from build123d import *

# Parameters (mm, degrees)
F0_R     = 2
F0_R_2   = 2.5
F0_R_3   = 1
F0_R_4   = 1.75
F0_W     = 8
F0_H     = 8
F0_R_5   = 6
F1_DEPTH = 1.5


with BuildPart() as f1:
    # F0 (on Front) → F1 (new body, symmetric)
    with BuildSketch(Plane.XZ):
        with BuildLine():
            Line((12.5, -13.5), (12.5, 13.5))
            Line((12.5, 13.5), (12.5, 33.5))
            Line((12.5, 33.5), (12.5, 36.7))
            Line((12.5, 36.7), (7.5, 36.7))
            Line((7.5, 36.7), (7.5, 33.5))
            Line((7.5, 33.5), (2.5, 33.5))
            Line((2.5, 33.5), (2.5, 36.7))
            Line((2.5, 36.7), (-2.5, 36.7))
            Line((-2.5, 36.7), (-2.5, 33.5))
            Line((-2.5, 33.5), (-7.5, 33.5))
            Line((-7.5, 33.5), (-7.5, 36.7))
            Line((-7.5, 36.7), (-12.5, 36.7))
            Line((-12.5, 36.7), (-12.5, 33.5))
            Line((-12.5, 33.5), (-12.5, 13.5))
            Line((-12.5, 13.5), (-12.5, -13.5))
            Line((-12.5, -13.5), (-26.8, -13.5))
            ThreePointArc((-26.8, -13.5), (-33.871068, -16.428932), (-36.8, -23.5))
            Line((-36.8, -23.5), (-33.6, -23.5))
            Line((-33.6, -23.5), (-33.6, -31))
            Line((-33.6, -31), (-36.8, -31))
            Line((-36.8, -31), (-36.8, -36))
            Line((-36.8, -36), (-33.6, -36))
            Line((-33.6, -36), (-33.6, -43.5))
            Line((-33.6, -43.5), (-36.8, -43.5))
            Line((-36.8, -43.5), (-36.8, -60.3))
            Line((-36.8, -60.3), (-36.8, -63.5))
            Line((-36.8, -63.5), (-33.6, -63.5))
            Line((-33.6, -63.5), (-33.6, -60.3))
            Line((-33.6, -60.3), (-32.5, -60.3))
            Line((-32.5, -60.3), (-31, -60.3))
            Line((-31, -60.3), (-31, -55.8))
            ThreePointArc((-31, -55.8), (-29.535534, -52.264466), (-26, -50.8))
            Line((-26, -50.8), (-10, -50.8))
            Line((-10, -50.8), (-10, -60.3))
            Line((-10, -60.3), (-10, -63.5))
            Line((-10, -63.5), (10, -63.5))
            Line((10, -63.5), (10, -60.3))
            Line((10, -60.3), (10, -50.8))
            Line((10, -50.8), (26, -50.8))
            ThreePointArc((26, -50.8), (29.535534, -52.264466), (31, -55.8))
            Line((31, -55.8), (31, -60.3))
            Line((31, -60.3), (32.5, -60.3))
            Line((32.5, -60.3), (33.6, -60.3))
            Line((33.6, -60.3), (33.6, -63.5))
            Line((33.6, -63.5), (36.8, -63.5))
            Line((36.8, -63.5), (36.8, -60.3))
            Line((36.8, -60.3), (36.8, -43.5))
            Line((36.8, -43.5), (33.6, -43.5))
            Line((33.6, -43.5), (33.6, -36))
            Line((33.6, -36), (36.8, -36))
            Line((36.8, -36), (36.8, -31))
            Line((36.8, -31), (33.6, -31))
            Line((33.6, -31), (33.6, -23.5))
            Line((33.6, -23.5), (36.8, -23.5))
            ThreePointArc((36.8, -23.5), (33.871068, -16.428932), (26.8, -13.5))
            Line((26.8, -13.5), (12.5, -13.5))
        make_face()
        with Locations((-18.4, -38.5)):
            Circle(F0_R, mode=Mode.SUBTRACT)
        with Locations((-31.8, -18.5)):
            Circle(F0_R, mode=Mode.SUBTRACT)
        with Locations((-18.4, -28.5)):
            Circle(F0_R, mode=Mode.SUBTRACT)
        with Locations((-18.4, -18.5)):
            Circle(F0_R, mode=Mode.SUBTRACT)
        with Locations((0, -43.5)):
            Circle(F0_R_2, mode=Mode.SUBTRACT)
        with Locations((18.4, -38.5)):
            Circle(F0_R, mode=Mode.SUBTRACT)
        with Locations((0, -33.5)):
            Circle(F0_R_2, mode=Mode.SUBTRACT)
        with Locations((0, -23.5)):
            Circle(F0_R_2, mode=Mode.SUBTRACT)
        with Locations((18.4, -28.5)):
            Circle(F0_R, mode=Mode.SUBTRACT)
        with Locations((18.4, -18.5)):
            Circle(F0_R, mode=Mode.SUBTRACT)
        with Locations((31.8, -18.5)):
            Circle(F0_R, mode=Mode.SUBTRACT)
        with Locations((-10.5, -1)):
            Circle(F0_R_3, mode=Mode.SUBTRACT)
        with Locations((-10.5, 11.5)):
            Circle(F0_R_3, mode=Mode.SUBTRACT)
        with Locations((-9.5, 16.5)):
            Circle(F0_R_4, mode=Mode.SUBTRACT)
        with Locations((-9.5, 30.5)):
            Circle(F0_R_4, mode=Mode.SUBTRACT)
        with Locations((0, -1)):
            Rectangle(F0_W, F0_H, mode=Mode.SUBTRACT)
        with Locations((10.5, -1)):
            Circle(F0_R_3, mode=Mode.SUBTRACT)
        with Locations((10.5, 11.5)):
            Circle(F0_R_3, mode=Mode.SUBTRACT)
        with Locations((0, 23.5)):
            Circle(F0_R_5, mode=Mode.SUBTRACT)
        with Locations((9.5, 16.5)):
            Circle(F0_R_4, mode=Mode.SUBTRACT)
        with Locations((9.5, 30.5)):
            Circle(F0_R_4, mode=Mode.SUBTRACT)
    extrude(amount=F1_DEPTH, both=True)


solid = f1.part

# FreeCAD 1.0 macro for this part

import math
import FreeCAD as App
import Part
import Sketcher
Q = App.Units.Quantity

doc = App.newDocument("Part")
body = doc.addObject("PartDesign::Body", "Body")

sketch1 = doc.addObject("Sketcher::SketchObject", "Sketch")
body.addObject(sketch1)
sketch1.AttachmentSupport = (doc.XZ_Plane, [""])
sketch1.MapMode = "FlatFace"
sketch1.addGeometry([
    Part.LineSegment(App.Vector(12.5, -13.5, 0), App.Vector(12.5, 36.7, 0)),
    Part.LineSegment(App.Vector(12.5, 36.7, 0), App.Vector(7.5, 36.7, 0)),
    Part.LineSegment(App.Vector(7.5, 36.7, 0), App.Vector(7.5, 33.5, 0)),
    Part.LineSegment(App.Vector(7.5, 33.5, 0), App.Vector(2.5, 33.5, 0)),
    Part.LineSegment(App.Vector(2.5, 33.5, 0), App.Vector(2.5, 36.7, 0)),
    Part.LineSegment(App.Vector(2.5, 36.7, 0), App.Vector(-2.5, 36.7, 0)),
    Part.LineSegment(App.Vector(-2.5, 36.7, 0), App.Vector(-2.5, 33.5, 0)),
    Part.LineSegment(App.Vector(-2.5, 33.5, 0), App.Vector(-7.5, 33.5, 0)),
    Part.LineSegment(App.Vector(-7.5, 33.5, 0), App.Vector(-7.5, 36.7, 0)),
    Part.LineSegment(App.Vector(-7.5, 36.7, 0), App.Vector(-12.5, 36.7, 0)),
    Part.LineSegment(App.Vector(-12.5, 36.7, 0), App.Vector(-12.5, -13.5, 0)),
    Part.LineSegment(App.Vector(-12.5, -13.5, 0), App.Vector(-26.8, -13.5, 0)),
    Part.ArcOfCircle(Part.Circle(App.Vector(-26.800001, -23.499999, 0), App.Vector(0, 0, 1), 9.999999), math.radians(89.999996), math.radians(180.000004)),
    Part.LineSegment(App.Vector(-36.8, -23.5, 0), App.Vector(-33.6, -23.5, 0)),
    Part.LineSegment(App.Vector(-33.6, -23.5, 0), App.Vector(-33.6, -31, 0)),
    Part.LineSegment(App.Vector(-33.6, -31, 0), App.Vector(-36.8, -31, 0)),
    Part.LineSegment(App.Vector(-36.8, -31, 0), App.Vector(-36.8, -36, 0)),
    Part.LineSegment(App.Vector(-36.8, -36, 0), App.Vector(-33.6, -36, 0)),
    Part.LineSegment(App.Vector(-33.6, -36, 0), App.Vector(-33.6, -43.5, 0)),
    Part.LineSegment(App.Vector(-33.6, -43.5, 0), App.Vector(-36.8, -43.5, 0)),
    Part.LineSegment(App.Vector(-36.8, -43.5, 0), App.Vector(-36.8, -63.5, 0)),
    Part.LineSegment(App.Vector(-36.8, -63.5, 0), App.Vector(-33.6, -63.5, 0)),
    Part.LineSegment(App.Vector(-33.6, -63.5, 0), App.Vector(-33.6, -60.3, 0)),
    Part.LineSegment(App.Vector(-33.6, -60.3, 0), App.Vector(-31, -60.3, 0)),
    Part.LineSegment(App.Vector(-31, -60.3, 0), App.Vector(-31, -55.8, 0)),
    Part.ArcOfCircle(Part.Circle(App.Vector(-26, -55.8, 0), App.Vector(0, 0, 1), 5), math.radians(89.999996), math.radians(180.000004)),
    Part.LineSegment(App.Vector(-26, -50.8, 0), App.Vector(-10, -50.8, 0)),
    Part.LineSegment(App.Vector(-10, -50.8, 0), App.Vector(-10, -63.5, 0)),
    Part.LineSegment(App.Vector(-10, -63.5, 0), App.Vector(10, -63.5, 0)),
    Part.LineSegment(App.Vector(10, -63.5, 0), App.Vector(10, -50.8, 0)),
    Part.LineSegment(App.Vector(10, -50.8, 0), App.Vector(26, -50.8, 0)),
    Part.ArcOfCircle(Part.Circle(App.Vector(26, -55.8, 0), App.Vector(0, 0, 1), 5), math.radians(-0.000004), math.radians(90.000004)),
    Part.LineSegment(App.Vector(31, -55.8, 0), App.Vector(31, -60.3, 0)),
    Part.LineSegment(App.Vector(31, -60.3, 0), App.Vector(33.6, -60.3, 0)),
    Part.LineSegment(App.Vector(33.6, -60.3, 0), App.Vector(33.6, -63.5, 0)),
    Part.LineSegment(App.Vector(33.6, -63.5, 0), App.Vector(36.8, -63.5, 0)),
    Part.LineSegment(App.Vector(36.8, -63.5, 0), App.Vector(36.8, -43.5, 0)),
    Part.LineSegment(App.Vector(36.8, -43.5, 0), App.Vector(33.6, -43.5, 0)),
    Part.LineSegment(App.Vector(33.6, -43.5, 0), App.Vector(33.6, -36, 0)),
    Part.LineSegment(App.Vector(33.6, -36, 0), App.Vector(36.8, -36, 0)),
    Part.LineSegment(App.Vector(36.8, -36, 0), App.Vector(36.8, -31, 0)),
    Part.LineSegment(App.Vector(36.8, -31, 0), App.Vector(33.6, -31, 0)),
    Part.LineSegment(App.Vector(33.6, -31, 0), App.Vector(33.6, -23.5, 0)),
    Part.LineSegment(App.Vector(33.6, -23.5, 0), App.Vector(36.8, -23.5, 0)),
    Part.ArcOfCircle(Part.Circle(App.Vector(26.800001, -23.499999, 0), App.Vector(0, 0, 1), 9.999999), math.radians(-0.000004), math.radians(90.000004)),
    Part.LineSegment(App.Vector(26.8, -13.5, 0), App.Vector(12.5, -13.5, 0)),
    Part.Circle(App.Vector(-18.4, -38.5, 0), App.Vector(0, 0, 1), 2),
    Part.Circle(App.Vector(-18.4, -28.5, 0), App.Vector(0, 0, 1), 2),
    Part.Circle(App.Vector(-31.8, -18.5, 0), App.Vector(0, 0, 1), 2),
    Part.Circle(App.Vector(-18.4, -18.5, 0), App.Vector(0, 0, 1), 2),
    Part.Circle(App.Vector(0, -43.5, 0), App.Vector(0, 0, 1), 2.5),
    Part.Circle(App.Vector(0, -33.5, 0), App.Vector(0, 0, 1), 2.5),
    Part.Circle(App.Vector(18.4, -38.5, 0), App.Vector(0, 0, 1), 2),
    Part.Circle(App.Vector(18.4, -28.5, 0), App.Vector(0, 0, 1), 2),
    Part.Circle(App.Vector(0, -23.5, 0), App.Vector(0, 0, 1), 2.5),
    Part.Circle(App.Vector(18.4, -18.5, 0), App.Vector(0, 0, 1), 2),
    Part.Circle(App.Vector(31.8, -18.5, 0), App.Vector(0, 0, 1), 2),
    Part.Circle(App.Vector(-10.5, -1, 0), App.Vector(0, 0, 1), 1),
    Part.Circle(App.Vector(-10.5, 11.5, 0), App.Vector(0, 0, 1), 1),
    Part.Circle(App.Vector(-9.5, 16.5, 0), App.Vector(0, 0, 1), 1.75),
    Part.Circle(App.Vector(-9.5, 30.5, 0), App.Vector(0, 0, 1), 1.75),
    Part.LineSegment(App.Vector(4, -5, 0), App.Vector(-4, -5, 0)),
    Part.LineSegment(App.Vector(-4, -5, 0), App.Vector(-4, 3, 0)),
    Part.LineSegment(App.Vector(-4, 3, 0), App.Vector(4, 3, 0)),
    Part.LineSegment(App.Vector(4, 3, 0), App.Vector(4, -5, 0)),
    Part.Circle(App.Vector(10.5, -1, 0), App.Vector(0, 0, 1), 1),
    Part.Circle(App.Vector(10.5, 11.5, 0), App.Vector(0, 0, 1), 1),
    Part.Circle(App.Vector(9.5, 16.5, 0), App.Vector(0, 0, 1), 1.75),
    Part.Circle(App.Vector(0, 23.5, 0), App.Vector(0, 0, 1), 6),
    Part.Circle(App.Vector(9.5, 30.5, 0), App.Vector(0, 0, 1), 1.75),
], False)
sketch1.addConstraint([
    Sketcher.Constraint("Coincident", 0, 2, 1, 1),
    Sketcher.Constraint("Coincident", 1, 2, 2, 1),
    Sketcher.Constraint("Coincident", 2, 2, 3, 1),
    Sketcher.Constraint("Coincident", 3, 2, 4, 1),
    Sketcher.Constraint("Coincident", 4, 2, 5, 1),
    Sketcher.Constraint("Coincident", 5, 2, 6, 1),
    Sketcher.Constraint("Coincident", 6, 2, 7, 1),
    Sketcher.Constraint("Coincident", 7, 2, 8, 1),
    Sketcher.Constraint("Coincident", 8, 2, 9, 1),
    Sketcher.Constraint("Coincident", 9, 2, 10, 1),
    Sketcher.Constraint("Coincident", 10, 2, 11, 1),
    Sketcher.Constraint("Tangent", 11, 2, 12, 1),
    Sketcher.Constraint("Coincident", 12, 2, 13, 1),
    Sketcher.Constraint("Coincident", 13, 2, 14, 1),
    Sketcher.Constraint("Coincident", 14, 2, 15, 1),
    Sketcher.Constraint("Coincident", 15, 2, 16, 1),
    Sketcher.Constraint("Coincident", 16, 2, 17, 1),
    Sketcher.Constraint("Coincident", 17, 2, 18, 1),
    Sketcher.Constraint("Coincident", 18, 2, 19, 1),
    Sketcher.Constraint("Coincident", 19, 2, 20, 1),
    Sketcher.Constraint("Coincident", 20, 2, 21, 1),
    Sketcher.Constraint("Coincident", 21, 2, 22, 1),
    Sketcher.Constraint("Coincident", 22, 2, 23, 1),
    Sketcher.Constraint("Coincident", 23, 2, 24, 1),
    Sketcher.Constraint("Tangent", 24, 2, 25, 2),
    Sketcher.Constraint("Tangent", 25, 1, 26, 1),
    Sketcher.Constraint("Coincident", 26, 2, 27, 1),
    Sketcher.Constraint("Coincident", 27, 2, 28, 1),
    Sketcher.Constraint("Coincident", 28, 2, 29, 1),
    Sketcher.Constraint("Coincident", 29, 2, 30, 1),
    Sketcher.Constraint("Tangent", 30, 2, 31, 2),
    Sketcher.Constraint("Tangent", 31, 1, 32, 1),
    Sketcher.Constraint("Coincident", 32, 2, 33, 1),
    Sketcher.Constraint("Coincident", 33, 2, 34, 1),
    Sketcher.Constraint("Coincident", 34, 2, 35, 1),
    Sketcher.Constraint("Coincident", 35, 2, 36, 1),
    Sketcher.Constraint("Coincident", 36, 2, 37, 1),
    Sketcher.Constraint("Coincident", 37, 2, 38, 1),
    Sketcher.Constraint("Coincident", 38, 2, 39, 1),
    Sketcher.Constraint("Coincident", 39, 2, 40, 1),
    Sketcher.Constraint("Coincident", 40, 2, 41, 1),
    Sketcher.Constraint("Coincident", 41, 2, 42, 1),
    Sketcher.Constraint("Coincident", 42, 2, 43, 1),
    Sketcher.Constraint("Coincident", 43, 2, 44, 1),
    Sketcher.Constraint("Tangent", 44, 2, 45, 1),
    Sketcher.Constraint("Coincident", 45, 2, 0, 1),
    Sketcher.Constraint("Coincident", 61, 2, 62, 1),
    Sketcher.Constraint("Coincident", 62, 2, 63, 1),
    Sketcher.Constraint("Coincident", 63, 2, 64, 1),
    Sketcher.Constraint("Coincident", 64, 2, 61, 1),
    Sketcher.Constraint("Vertical", 0),
    Sketcher.Constraint("Horizontal", 1),
    Sketcher.Constraint("Vertical", 2),
    Sketcher.Constraint("Horizontal", 3),
    Sketcher.Constraint("Vertical", 4),
    Sketcher.Constraint("Horizontal", 5),
    Sketcher.Constraint("Vertical", 6),
    Sketcher.Constraint("Horizontal", 7),
    Sketcher.Constraint("Vertical", 8),
    Sketcher.Constraint("Horizontal", 9),
    Sketcher.Constraint("Vertical", 10),
    Sketcher.Constraint("Horizontal", 11),
    Sketcher.Constraint("Horizontal", 13),
    Sketcher.Constraint("Vertical", 14),
    Sketcher.Constraint("Horizontal", 15),
    Sketcher.Constraint("Vertical", 16),
    Sketcher.Constraint("Horizontal", 17),
    Sketcher.Constraint("Vertical", 18),
    Sketcher.Constraint("Horizontal", 19),
    Sketcher.Constraint("Vertical", 20),
    Sketcher.Constraint("Horizontal", 21),
    Sketcher.Constraint("Vertical", 22),
    Sketcher.Constraint("Horizontal", 23),
    Sketcher.Constraint("Vertical", 24),
    Sketcher.Constraint("Horizontal", 26),
    Sketcher.Constraint("Vertical", 27),
    Sketcher.Constraint("Horizontal", 28),
    Sketcher.Constraint("Vertical", 29),
    Sketcher.Constraint("Horizontal", 30),
    Sketcher.Constraint("Vertical", 32),
    Sketcher.Constraint("Horizontal", 33),
    Sketcher.Constraint("Vertical", 34),
    Sketcher.Constraint("Horizontal", 35),
    Sketcher.Constraint("Vertical", 36),
    Sketcher.Constraint("Horizontal", 37),
    Sketcher.Constraint("Vertical", 38),
    Sketcher.Constraint("Horizontal", 39),
    Sketcher.Constraint("Vertical", 40),
    Sketcher.Constraint("Horizontal", 41),
    Sketcher.Constraint("Vertical", 42),
    Sketcher.Constraint("Horizontal", 43),
    Sketcher.Constraint("Horizontal", 45),
    Sketcher.Constraint("Horizontal", 61),
    Sketcher.Constraint("Vertical", 62),
    Sketcher.Constraint("Horizontal", 63),
    Sketcher.Constraint("Vertical", 64),
    Sketcher.Constraint("Equal", 25, 31),
    Sketcher.Constraint("Equal", 12, 44),
    Sketcher.Constraint("Equal", 46, 47),
    Sketcher.Constraint("Equal", 47, 48),
    Sketcher.Constraint("Equal", 48, 49),
    Sketcher.Constraint("Equal", 50, 51),
    Sketcher.Constraint("Equal", 49, 52),
    Sketcher.Constraint("Equal", 52, 53),
    Sketcher.Constraint("Equal", 51, 54),
    Sketcher.Constraint("Equal", 53, 55),
    Sketcher.Constraint("Equal", 55, 56),
    Sketcher.Constraint("Equal", 57, 58),
    Sketcher.Constraint("Equal", 59, 60),
    Sketcher.Constraint("Equal", 58, 65),
    Sketcher.Constraint("Equal", 65, 66),
    Sketcher.Constraint("Equal", 60, 67),
    Sketcher.Constraint("Equal", 67, 69),
    Sketcher.Constraint("Symmetric", 54, 3, 68, 3, -1, 1),
    Sketcher.Constraint("Symmetric", 25, 3, 31, 3, -2),
    Sketcher.Constraint("Symmetric", 12, 3, 44, 3, -2),
    Sketcher.Constraint("Symmetric", 46, 3, 52, 3, -2),
    Sketcher.Constraint("Symmetric", 47, 3, 53, 3, -2),
    Sketcher.Constraint("Symmetric", 49, 3, 55, 3, -2),
    Sketcher.Constraint("Symmetric", 48, 3, 56, 3, -2),
    Sketcher.Constraint("Symmetric", 57, 3, 65, 3, -2),
    Sketcher.Constraint("Symmetric", 58, 3, 66, 3, -2),
    Sketcher.Constraint("Symmetric", 59, 3, 67, 3, -2),
    Sketcher.Constraint("Symmetric", 60, 3, 69, 3, -2),
    Sketcher.Constraint("Symmetric", 3, 2, 6, 2, -2),
    Sketcher.Constraint("Symmetric", 1, 2, 8, 2, -2),
    Sketcher.Constraint("Symmetric", 22, 2, 33, 2, -2),
    Sketcher.Constraint("Symmetric", 20, 2, 35, 2, -2),
    Sketcher.Constraint("Symmetric", 18, 2, 37, 2, -2),
    Sketcher.Constraint("Symmetric", 16, 2, 39, 2, -2),
    Sketcher.Constraint("Symmetric", 14, 2, 41, 2, -2),
    Sketcher.Constraint("PointOnObject", 50, 3, -2),
    Sketcher.Constraint("PointOnObject", 51, 3, -2),
    Sketcher.Constraint("PointOnObject", 54, 3, -2),
    Sketcher.Constraint("Horizontal", 48, 3, 49, 3),
    Sketcher.Constraint("Horizontal", 44, 3, 54, 3),
    Sketcher.Constraint("Horizontal", 1, 2, 4, 2),
    Sketcher.Constraint("Horizontal", 54, 3, 12, 2),
    Sketcher.Constraint("Horizontal", 50, 3, 18, 2),
    Sketcher.Constraint("Horizontal", 21, 2, 27, 2),
    Sketcher.Constraint("Horizontal", 13, 2, 42, 2),
    Sketcher.Constraint("Vertical", 46, 3, 47, 3),
    Sketcher.Constraint("Vertical", 47, 3, 49, 3),
    Sketcher.Constraint("Vertical", 57, 3, 58, 3),
    Sketcher.Constraint("Vertical", 59, 3, 60, 3),
    Sketcher.Constraint("Vertical", 12, 2, 15, 2),
    Sketcher.Constraint("Vertical", 14, 2, 17, 2),
    Sketcher.Constraint("Vertical", 16, 2, 19, 2),
    Sketcher.Constraint("Vertical", 18, 2, 21, 2),
    Sketcher.Constraint("Equal", 1, 3),
    Sketcher.Constraint("Equal", 3, 5),
    Sketcher.Constraint("Equal", 7, 9),
    Sketcher.Constraint("Equal", 26, 30),
    Sketcher.Constraint("Equal", 43, 2),
    Sketcher.Constraint("Equal", 9, 16),
    Sketcher.Constraint("Equal", 14, 18),
    Sketcher.Constraint("Equal", 28, 20),
    Sketcher.Constraint("Equal", 8, 22),
    Sketcher.Constraint("Equal", 63, 62),
    Sketcher.Constraint("Diameter", 46, Q("4 mm")),
    Sketcher.Constraint("Diameter", 50, Q("5 mm")),
    Sketcher.Constraint("Diameter", 57, Q("2 mm")),
    Sketcher.Constraint("Diameter", 68, Q("12 mm")),
    Sketcher.Constraint("Radius", 12, Q("9.999999 mm")),
    Sketcher.Constraint("Radius", 25, Q("5 mm")),
    Sketcher.Constraint("Diameter", 59, Q("3.5 mm")),
    Sketcher.Constraint("DistanceX", 1, 2, 1, 1, Q("5 mm")),
    Sketcher.Constraint("DistanceX", 26, 1, 26, 2, Q("16 mm")),
    Sketcher.Constraint("DistanceX", 28, 1, 28, 2, Q("20 mm")),
    Sketcher.Constraint("DistanceX", 61, 2, 61, 1, Q("8 mm")),
    Sketcher.Constraint("DistanceX", 11, 2, 11, 1, Q("14.3 mm")),
    Sketcher.Constraint("DistanceX", 13, 1, 13, 2, Q("3.2 mm")),
    Sketcher.Constraint("DistanceY", 0, 1, 0, 2, Q("50.2 mm")),
    Sketcher.Constraint("DistanceY", 14, 2, 14, 1, Q("7.5 mm")),
    Sketcher.Constraint("DistanceY", 24, 1, 24, 2, Q("4.5 mm")),
    Sketcher.Constraint("DistanceY", 57, 3, -1, 1, Q("1 mm")),
    Sketcher.Constraint("DistanceY", 14, 2, -1, 1, Q("31 mm")),
    Sketcher.Constraint("DistanceX", 61, 2, -1, 1, Q("4 mm")),
    Sketcher.Constraint("DistanceY", 61, 2, -1, 1, Q("5 mm")),
    Sketcher.Constraint("DistanceX", 46, 3, -1, 1, Q("18.4 mm")),
    Sketcher.Constraint("DistanceY", 46, 3, -1, 1, Q("38.5 mm")),
    Sketcher.Constraint("DistanceY", 47, 3, -1, 1, Q("28.5 mm")),
    Sketcher.Constraint("DistanceX", 48, 3, -1, 1, Q("31.8 mm")),
    Sketcher.Constraint("DistanceY", 48, 3, -1, 1, Q("18.5 mm")),
    Sketcher.Constraint("DistanceY", 51, 3, -1, 1, Q("33.5 mm")),
    Sketcher.Constraint("DistanceX", 57, 3, -1, 1, Q("10.5 mm")),
    Sketcher.Constraint("DistanceY", -1, 1, 58, 3, Q("11.5 mm")),
    Sketcher.Constraint("DistanceX", 59, 3, -1, 1, Q("9.5 mm")),
    Sketcher.Constraint("DistanceY", -1, 1, 59, 3, Q("16.5 mm")),
    Sketcher.Constraint("DistanceY", -1, 1, 60, 3, Q("30.5 mm")),
])
pad1 = doc.addObject("PartDesign::Pad", "Pad")
body.addObject(pad1)
pad1.Profile = sketch1
pad1.Length = 3
pad1.Midplane = True

doc.recompute()
